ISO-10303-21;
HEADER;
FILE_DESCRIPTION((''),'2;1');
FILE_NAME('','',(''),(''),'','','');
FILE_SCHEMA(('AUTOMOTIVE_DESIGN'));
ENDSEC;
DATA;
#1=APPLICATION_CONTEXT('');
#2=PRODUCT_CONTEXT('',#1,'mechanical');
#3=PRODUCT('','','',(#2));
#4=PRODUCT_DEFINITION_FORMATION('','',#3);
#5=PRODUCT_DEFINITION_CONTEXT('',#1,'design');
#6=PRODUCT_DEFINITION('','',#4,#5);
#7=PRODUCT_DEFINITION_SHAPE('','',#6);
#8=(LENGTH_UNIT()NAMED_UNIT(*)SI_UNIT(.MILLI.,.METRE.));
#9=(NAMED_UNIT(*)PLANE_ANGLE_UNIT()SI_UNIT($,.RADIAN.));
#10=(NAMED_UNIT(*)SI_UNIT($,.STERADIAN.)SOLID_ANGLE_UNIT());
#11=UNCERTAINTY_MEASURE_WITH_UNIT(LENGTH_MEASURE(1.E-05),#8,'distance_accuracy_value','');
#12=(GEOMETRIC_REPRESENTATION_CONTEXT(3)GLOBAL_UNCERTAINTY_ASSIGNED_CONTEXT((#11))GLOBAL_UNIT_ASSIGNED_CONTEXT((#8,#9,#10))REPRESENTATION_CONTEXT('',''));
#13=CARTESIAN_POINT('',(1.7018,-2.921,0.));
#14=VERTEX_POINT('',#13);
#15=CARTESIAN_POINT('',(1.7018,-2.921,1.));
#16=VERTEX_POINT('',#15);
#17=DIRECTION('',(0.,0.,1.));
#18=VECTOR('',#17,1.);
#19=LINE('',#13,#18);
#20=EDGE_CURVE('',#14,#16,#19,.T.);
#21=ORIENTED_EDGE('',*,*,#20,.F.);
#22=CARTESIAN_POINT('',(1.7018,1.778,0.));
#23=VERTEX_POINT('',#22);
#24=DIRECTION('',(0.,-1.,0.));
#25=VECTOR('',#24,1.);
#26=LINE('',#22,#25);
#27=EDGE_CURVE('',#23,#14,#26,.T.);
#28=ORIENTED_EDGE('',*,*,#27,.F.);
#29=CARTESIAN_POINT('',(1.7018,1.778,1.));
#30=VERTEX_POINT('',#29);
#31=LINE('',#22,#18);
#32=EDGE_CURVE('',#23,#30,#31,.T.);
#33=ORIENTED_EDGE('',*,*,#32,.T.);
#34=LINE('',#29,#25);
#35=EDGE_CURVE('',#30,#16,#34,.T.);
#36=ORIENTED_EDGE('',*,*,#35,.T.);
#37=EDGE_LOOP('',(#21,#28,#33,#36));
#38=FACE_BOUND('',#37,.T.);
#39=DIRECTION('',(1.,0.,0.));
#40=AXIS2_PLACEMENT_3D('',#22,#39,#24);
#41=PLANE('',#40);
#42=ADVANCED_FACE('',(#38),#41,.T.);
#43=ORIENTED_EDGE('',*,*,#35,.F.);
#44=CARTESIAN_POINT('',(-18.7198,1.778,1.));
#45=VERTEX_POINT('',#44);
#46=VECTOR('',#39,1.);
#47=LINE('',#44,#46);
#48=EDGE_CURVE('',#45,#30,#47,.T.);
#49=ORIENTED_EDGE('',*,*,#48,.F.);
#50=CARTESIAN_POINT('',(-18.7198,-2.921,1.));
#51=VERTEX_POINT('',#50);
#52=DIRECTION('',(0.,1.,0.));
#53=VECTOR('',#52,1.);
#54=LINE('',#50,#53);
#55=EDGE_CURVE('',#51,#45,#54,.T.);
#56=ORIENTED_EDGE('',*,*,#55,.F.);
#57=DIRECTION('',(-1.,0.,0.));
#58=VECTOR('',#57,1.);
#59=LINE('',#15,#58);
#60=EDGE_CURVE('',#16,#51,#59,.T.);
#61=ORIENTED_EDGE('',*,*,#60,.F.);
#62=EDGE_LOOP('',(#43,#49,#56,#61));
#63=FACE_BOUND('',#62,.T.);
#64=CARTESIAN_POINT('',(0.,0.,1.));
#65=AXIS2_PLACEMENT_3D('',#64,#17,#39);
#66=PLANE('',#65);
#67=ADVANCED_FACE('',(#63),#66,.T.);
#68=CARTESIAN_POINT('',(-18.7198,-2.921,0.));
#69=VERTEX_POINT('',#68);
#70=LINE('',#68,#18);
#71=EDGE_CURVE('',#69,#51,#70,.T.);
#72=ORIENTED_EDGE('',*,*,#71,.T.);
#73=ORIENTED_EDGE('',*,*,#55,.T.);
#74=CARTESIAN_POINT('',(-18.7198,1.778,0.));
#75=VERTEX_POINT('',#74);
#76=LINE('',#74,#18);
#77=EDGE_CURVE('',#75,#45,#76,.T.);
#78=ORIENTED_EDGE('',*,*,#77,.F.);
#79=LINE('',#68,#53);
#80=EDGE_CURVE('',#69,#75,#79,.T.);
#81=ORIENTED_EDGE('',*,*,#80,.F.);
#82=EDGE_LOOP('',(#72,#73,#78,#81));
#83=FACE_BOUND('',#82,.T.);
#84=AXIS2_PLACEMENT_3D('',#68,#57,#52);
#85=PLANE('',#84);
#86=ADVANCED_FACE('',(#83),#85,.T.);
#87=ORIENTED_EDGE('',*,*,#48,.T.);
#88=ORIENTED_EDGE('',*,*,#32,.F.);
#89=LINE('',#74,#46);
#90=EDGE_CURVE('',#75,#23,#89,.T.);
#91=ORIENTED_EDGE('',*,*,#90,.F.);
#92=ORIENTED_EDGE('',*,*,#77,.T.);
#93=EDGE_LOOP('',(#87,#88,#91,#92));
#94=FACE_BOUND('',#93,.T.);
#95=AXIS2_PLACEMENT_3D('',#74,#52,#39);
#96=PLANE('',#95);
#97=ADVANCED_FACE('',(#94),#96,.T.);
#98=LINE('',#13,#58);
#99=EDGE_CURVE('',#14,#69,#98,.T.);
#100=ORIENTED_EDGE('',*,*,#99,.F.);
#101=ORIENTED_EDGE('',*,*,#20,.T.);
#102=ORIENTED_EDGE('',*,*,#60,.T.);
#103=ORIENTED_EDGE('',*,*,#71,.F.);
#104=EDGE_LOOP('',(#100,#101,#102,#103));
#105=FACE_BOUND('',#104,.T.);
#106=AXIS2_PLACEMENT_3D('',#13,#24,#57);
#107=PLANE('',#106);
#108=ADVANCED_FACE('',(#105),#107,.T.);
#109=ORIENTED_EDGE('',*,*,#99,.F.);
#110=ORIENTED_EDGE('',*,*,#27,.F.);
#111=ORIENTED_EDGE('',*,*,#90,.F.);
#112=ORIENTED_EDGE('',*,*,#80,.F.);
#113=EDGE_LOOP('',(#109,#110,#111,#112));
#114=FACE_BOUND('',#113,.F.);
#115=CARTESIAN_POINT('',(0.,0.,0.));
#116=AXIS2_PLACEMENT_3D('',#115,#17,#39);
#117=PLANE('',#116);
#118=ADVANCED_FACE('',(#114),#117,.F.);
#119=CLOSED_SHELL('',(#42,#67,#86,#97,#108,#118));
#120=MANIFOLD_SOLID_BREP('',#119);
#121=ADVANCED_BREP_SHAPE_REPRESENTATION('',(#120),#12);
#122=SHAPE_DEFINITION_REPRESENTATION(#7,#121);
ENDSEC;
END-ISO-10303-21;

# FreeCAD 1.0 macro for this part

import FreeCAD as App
import Part
import Sketcher

V = App.Vector
Q = App.Units.Quantity


def add_polygon(sketch, points):
    """Adds a closed chain of lines whose ends are joined by coincident constraints."""
    first, n = sketch.GeometryCount, len(points)
    for a, b in zip(points, points[1:] + points[:1]):
        sketch.addGeometry(Part.LineSegment(App.Vector(*a, 0), App.Vector(*b, 0)), False)
    for i in range(n):
        sketch.addConstraint(Sketcher.Constraint("Coincident", first + i, 2, first + (i + 1) % n, 1))

doc = App.newDocument("Part")
body = doc.addObject("PartDesign::Body", "Body")

# Sketch on XY plane
sketch1 = body.newObject("Sketcher::SketchObject", "Sketch")
sketch1.AttachmentSupport = (doc.getObject("XY_Plane"), [""])
sketch1.MapMode = "FlatFace"
add_polygon(sketch1, [(1.7, 1.8), (-18.7, 1.8), (-18.7, -2.9), (1.7, -2.9)])  # lines 0-3
sketch1.addConstraint([
    Sketcher.Constraint("Horizontal", 0),
    Sketcher.Constraint("Vertical", 1),
    Sketcher.Constraint("Horizontal", 2),
    Sketcher.Constraint("Vertical", 3),
    Sketcher.Constraint("DistanceX", 0, 2, 0, 1, Q("0.804 in")),
    Sketcher.Constraint("DistanceY", 1, 2, 1, 1, Q("0.185 in")),
    Sketcher.Constraint("DistanceY", -1, 1, 0, 2, Q("0.07 in")),
    Sketcher.Constraint("DistanceX", 0, 2, -1, 1, Q("0.737 in")),
])
pad1 = body.newObject("PartDesign::Pad", "Pad")
pad1.Profile = sketch1
pad1.Length = 1

doc.recompute()
